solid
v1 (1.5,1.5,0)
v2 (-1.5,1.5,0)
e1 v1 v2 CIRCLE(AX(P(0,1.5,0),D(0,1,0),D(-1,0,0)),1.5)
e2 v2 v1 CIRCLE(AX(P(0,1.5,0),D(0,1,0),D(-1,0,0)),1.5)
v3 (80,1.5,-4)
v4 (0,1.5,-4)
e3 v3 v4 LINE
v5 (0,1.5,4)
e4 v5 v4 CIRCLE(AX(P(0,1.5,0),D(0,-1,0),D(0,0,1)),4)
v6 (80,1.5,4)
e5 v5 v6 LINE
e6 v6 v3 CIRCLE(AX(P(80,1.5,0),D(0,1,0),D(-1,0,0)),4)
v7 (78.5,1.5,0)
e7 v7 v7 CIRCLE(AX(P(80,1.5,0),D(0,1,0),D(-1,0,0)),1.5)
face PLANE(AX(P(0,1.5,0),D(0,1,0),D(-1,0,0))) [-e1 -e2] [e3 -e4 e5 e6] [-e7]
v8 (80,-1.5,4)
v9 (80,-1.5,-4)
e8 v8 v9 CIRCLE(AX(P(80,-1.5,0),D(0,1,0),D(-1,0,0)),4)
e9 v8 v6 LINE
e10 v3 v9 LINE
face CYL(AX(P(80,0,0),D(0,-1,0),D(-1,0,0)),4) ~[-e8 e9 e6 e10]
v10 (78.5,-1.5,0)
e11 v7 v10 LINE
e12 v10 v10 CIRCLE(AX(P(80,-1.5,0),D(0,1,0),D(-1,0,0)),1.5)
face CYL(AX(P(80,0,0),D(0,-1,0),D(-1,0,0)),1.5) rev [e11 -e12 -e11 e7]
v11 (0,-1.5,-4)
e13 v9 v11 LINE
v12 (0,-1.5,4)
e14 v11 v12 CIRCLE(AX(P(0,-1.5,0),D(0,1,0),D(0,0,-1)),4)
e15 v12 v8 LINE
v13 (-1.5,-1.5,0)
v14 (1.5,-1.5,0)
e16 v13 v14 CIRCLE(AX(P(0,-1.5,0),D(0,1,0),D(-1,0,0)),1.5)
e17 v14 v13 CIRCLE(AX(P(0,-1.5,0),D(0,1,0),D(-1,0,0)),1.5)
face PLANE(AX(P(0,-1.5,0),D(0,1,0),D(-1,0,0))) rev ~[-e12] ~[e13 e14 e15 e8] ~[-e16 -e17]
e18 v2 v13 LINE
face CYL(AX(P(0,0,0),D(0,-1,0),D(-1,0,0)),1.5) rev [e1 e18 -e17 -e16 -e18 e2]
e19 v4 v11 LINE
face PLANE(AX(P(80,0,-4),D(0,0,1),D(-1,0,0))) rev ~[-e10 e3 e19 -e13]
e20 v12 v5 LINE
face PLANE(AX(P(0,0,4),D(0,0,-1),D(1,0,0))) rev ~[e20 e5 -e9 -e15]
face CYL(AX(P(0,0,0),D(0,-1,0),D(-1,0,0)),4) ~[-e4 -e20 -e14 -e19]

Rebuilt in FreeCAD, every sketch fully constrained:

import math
import FreeCAD as App
import Part
import Sketcher

doc = App.newDocument("Part")
params = doc.addObject("Spreadsheet::Sheet", "Params")
for row, (alias, value) in enumerate([
    ("sketch1_diameter", "3 mm"),
    ("sketch1_radius", "4 mm"),
    ("sketch1_width", "80 mm"),
    ("pad1_length", "3 mm"),
], start=1):
    params.set(f"A{row}", alias)
    params.set(f"B{row}", "=" + value)
    params.setAlias(f"B{row}", alias)

body = doc.addObject("PartDesign::Body", "Body")

sketch1 = body.newObject("Sketcher::SketchObject", "Sketch")
sketch1.AttachmentSupport = (doc.getObject("XZ_Plane"), [""])
sketch1.MapMode = "FlatFace"
sketch1.addGeometry([
    Part.LineSegment(App.Vector(0, 4, 0), App.Vector(80, 4, 0)),
    Part.ArcOfCircle(Part.Circle(App.Vector(80, 0, 0), App.Vector(0, 0, 1), 4), math.radians(-90), math.radians(90)),
    Part.LineSegment(App.Vector(80, -4, 0), App.Vector(0, -4, 0)),
    Part.ArcOfCircle(Part.Circle(App.Vector(0, 0, 0), App.Vector(0, 0, 1), 4), math.radians(90), math.radians(270)),
    Part.Circle(App.Vector(0, 0, 0), App.Vector(0, 0, 1), 1.5),
    Part.Circle(App.Vector(80, 0, 0), App.Vector(0, 0, 1), 1.5),
], False)
sketch1.addConstraint([
    Sketcher.Constraint("Tangent", 0, 2, 1, 2),
    Sketcher.Constraint("Tangent", 1, 1, 2, 1),
    Sketcher.Constraint("Tangent", 2, 2, 3, 2),
    Sketcher.Constraint("Tangent", 3, 1, 0, 1),
    Sketcher.Constraint("Horizontal", 0),
    Sketcher.Constraint("Horizontal", 2),
    Sketcher.Constraint("Coincident", 3, 3, -1, 1),
    Sketcher.Constraint("Coincident", 4, 3, -1, 1),
    Sketcher.Constraint("Coincident", 5, 3, 1, 3),
    Sketcher.Constraint("Equal", 4, 5),
    Sketcher.Constraint("Diameter", 4, 3.0),
    Sketcher.Constraint("Radius", 1, 4.0),
    Sketcher.Constraint("DistanceX", 0, 1, 0, 2, 80.0),
])
sketch1.setExpression("Constraints[10]", "Params.sketch1_diameter")
sketch1.setExpression("Constraints[11]", "Params.sketch1_radius")
sketch1.setExpression("Constraints[12]", "Params.sketch1_width")
pad1 = body.newObject("PartDesign::Pad", "Pad")
pad1.Profile = sketch1
pad1.setExpression("Length", "Params.pad1_length")
pad1.Midplane = True

doc.recompute()
